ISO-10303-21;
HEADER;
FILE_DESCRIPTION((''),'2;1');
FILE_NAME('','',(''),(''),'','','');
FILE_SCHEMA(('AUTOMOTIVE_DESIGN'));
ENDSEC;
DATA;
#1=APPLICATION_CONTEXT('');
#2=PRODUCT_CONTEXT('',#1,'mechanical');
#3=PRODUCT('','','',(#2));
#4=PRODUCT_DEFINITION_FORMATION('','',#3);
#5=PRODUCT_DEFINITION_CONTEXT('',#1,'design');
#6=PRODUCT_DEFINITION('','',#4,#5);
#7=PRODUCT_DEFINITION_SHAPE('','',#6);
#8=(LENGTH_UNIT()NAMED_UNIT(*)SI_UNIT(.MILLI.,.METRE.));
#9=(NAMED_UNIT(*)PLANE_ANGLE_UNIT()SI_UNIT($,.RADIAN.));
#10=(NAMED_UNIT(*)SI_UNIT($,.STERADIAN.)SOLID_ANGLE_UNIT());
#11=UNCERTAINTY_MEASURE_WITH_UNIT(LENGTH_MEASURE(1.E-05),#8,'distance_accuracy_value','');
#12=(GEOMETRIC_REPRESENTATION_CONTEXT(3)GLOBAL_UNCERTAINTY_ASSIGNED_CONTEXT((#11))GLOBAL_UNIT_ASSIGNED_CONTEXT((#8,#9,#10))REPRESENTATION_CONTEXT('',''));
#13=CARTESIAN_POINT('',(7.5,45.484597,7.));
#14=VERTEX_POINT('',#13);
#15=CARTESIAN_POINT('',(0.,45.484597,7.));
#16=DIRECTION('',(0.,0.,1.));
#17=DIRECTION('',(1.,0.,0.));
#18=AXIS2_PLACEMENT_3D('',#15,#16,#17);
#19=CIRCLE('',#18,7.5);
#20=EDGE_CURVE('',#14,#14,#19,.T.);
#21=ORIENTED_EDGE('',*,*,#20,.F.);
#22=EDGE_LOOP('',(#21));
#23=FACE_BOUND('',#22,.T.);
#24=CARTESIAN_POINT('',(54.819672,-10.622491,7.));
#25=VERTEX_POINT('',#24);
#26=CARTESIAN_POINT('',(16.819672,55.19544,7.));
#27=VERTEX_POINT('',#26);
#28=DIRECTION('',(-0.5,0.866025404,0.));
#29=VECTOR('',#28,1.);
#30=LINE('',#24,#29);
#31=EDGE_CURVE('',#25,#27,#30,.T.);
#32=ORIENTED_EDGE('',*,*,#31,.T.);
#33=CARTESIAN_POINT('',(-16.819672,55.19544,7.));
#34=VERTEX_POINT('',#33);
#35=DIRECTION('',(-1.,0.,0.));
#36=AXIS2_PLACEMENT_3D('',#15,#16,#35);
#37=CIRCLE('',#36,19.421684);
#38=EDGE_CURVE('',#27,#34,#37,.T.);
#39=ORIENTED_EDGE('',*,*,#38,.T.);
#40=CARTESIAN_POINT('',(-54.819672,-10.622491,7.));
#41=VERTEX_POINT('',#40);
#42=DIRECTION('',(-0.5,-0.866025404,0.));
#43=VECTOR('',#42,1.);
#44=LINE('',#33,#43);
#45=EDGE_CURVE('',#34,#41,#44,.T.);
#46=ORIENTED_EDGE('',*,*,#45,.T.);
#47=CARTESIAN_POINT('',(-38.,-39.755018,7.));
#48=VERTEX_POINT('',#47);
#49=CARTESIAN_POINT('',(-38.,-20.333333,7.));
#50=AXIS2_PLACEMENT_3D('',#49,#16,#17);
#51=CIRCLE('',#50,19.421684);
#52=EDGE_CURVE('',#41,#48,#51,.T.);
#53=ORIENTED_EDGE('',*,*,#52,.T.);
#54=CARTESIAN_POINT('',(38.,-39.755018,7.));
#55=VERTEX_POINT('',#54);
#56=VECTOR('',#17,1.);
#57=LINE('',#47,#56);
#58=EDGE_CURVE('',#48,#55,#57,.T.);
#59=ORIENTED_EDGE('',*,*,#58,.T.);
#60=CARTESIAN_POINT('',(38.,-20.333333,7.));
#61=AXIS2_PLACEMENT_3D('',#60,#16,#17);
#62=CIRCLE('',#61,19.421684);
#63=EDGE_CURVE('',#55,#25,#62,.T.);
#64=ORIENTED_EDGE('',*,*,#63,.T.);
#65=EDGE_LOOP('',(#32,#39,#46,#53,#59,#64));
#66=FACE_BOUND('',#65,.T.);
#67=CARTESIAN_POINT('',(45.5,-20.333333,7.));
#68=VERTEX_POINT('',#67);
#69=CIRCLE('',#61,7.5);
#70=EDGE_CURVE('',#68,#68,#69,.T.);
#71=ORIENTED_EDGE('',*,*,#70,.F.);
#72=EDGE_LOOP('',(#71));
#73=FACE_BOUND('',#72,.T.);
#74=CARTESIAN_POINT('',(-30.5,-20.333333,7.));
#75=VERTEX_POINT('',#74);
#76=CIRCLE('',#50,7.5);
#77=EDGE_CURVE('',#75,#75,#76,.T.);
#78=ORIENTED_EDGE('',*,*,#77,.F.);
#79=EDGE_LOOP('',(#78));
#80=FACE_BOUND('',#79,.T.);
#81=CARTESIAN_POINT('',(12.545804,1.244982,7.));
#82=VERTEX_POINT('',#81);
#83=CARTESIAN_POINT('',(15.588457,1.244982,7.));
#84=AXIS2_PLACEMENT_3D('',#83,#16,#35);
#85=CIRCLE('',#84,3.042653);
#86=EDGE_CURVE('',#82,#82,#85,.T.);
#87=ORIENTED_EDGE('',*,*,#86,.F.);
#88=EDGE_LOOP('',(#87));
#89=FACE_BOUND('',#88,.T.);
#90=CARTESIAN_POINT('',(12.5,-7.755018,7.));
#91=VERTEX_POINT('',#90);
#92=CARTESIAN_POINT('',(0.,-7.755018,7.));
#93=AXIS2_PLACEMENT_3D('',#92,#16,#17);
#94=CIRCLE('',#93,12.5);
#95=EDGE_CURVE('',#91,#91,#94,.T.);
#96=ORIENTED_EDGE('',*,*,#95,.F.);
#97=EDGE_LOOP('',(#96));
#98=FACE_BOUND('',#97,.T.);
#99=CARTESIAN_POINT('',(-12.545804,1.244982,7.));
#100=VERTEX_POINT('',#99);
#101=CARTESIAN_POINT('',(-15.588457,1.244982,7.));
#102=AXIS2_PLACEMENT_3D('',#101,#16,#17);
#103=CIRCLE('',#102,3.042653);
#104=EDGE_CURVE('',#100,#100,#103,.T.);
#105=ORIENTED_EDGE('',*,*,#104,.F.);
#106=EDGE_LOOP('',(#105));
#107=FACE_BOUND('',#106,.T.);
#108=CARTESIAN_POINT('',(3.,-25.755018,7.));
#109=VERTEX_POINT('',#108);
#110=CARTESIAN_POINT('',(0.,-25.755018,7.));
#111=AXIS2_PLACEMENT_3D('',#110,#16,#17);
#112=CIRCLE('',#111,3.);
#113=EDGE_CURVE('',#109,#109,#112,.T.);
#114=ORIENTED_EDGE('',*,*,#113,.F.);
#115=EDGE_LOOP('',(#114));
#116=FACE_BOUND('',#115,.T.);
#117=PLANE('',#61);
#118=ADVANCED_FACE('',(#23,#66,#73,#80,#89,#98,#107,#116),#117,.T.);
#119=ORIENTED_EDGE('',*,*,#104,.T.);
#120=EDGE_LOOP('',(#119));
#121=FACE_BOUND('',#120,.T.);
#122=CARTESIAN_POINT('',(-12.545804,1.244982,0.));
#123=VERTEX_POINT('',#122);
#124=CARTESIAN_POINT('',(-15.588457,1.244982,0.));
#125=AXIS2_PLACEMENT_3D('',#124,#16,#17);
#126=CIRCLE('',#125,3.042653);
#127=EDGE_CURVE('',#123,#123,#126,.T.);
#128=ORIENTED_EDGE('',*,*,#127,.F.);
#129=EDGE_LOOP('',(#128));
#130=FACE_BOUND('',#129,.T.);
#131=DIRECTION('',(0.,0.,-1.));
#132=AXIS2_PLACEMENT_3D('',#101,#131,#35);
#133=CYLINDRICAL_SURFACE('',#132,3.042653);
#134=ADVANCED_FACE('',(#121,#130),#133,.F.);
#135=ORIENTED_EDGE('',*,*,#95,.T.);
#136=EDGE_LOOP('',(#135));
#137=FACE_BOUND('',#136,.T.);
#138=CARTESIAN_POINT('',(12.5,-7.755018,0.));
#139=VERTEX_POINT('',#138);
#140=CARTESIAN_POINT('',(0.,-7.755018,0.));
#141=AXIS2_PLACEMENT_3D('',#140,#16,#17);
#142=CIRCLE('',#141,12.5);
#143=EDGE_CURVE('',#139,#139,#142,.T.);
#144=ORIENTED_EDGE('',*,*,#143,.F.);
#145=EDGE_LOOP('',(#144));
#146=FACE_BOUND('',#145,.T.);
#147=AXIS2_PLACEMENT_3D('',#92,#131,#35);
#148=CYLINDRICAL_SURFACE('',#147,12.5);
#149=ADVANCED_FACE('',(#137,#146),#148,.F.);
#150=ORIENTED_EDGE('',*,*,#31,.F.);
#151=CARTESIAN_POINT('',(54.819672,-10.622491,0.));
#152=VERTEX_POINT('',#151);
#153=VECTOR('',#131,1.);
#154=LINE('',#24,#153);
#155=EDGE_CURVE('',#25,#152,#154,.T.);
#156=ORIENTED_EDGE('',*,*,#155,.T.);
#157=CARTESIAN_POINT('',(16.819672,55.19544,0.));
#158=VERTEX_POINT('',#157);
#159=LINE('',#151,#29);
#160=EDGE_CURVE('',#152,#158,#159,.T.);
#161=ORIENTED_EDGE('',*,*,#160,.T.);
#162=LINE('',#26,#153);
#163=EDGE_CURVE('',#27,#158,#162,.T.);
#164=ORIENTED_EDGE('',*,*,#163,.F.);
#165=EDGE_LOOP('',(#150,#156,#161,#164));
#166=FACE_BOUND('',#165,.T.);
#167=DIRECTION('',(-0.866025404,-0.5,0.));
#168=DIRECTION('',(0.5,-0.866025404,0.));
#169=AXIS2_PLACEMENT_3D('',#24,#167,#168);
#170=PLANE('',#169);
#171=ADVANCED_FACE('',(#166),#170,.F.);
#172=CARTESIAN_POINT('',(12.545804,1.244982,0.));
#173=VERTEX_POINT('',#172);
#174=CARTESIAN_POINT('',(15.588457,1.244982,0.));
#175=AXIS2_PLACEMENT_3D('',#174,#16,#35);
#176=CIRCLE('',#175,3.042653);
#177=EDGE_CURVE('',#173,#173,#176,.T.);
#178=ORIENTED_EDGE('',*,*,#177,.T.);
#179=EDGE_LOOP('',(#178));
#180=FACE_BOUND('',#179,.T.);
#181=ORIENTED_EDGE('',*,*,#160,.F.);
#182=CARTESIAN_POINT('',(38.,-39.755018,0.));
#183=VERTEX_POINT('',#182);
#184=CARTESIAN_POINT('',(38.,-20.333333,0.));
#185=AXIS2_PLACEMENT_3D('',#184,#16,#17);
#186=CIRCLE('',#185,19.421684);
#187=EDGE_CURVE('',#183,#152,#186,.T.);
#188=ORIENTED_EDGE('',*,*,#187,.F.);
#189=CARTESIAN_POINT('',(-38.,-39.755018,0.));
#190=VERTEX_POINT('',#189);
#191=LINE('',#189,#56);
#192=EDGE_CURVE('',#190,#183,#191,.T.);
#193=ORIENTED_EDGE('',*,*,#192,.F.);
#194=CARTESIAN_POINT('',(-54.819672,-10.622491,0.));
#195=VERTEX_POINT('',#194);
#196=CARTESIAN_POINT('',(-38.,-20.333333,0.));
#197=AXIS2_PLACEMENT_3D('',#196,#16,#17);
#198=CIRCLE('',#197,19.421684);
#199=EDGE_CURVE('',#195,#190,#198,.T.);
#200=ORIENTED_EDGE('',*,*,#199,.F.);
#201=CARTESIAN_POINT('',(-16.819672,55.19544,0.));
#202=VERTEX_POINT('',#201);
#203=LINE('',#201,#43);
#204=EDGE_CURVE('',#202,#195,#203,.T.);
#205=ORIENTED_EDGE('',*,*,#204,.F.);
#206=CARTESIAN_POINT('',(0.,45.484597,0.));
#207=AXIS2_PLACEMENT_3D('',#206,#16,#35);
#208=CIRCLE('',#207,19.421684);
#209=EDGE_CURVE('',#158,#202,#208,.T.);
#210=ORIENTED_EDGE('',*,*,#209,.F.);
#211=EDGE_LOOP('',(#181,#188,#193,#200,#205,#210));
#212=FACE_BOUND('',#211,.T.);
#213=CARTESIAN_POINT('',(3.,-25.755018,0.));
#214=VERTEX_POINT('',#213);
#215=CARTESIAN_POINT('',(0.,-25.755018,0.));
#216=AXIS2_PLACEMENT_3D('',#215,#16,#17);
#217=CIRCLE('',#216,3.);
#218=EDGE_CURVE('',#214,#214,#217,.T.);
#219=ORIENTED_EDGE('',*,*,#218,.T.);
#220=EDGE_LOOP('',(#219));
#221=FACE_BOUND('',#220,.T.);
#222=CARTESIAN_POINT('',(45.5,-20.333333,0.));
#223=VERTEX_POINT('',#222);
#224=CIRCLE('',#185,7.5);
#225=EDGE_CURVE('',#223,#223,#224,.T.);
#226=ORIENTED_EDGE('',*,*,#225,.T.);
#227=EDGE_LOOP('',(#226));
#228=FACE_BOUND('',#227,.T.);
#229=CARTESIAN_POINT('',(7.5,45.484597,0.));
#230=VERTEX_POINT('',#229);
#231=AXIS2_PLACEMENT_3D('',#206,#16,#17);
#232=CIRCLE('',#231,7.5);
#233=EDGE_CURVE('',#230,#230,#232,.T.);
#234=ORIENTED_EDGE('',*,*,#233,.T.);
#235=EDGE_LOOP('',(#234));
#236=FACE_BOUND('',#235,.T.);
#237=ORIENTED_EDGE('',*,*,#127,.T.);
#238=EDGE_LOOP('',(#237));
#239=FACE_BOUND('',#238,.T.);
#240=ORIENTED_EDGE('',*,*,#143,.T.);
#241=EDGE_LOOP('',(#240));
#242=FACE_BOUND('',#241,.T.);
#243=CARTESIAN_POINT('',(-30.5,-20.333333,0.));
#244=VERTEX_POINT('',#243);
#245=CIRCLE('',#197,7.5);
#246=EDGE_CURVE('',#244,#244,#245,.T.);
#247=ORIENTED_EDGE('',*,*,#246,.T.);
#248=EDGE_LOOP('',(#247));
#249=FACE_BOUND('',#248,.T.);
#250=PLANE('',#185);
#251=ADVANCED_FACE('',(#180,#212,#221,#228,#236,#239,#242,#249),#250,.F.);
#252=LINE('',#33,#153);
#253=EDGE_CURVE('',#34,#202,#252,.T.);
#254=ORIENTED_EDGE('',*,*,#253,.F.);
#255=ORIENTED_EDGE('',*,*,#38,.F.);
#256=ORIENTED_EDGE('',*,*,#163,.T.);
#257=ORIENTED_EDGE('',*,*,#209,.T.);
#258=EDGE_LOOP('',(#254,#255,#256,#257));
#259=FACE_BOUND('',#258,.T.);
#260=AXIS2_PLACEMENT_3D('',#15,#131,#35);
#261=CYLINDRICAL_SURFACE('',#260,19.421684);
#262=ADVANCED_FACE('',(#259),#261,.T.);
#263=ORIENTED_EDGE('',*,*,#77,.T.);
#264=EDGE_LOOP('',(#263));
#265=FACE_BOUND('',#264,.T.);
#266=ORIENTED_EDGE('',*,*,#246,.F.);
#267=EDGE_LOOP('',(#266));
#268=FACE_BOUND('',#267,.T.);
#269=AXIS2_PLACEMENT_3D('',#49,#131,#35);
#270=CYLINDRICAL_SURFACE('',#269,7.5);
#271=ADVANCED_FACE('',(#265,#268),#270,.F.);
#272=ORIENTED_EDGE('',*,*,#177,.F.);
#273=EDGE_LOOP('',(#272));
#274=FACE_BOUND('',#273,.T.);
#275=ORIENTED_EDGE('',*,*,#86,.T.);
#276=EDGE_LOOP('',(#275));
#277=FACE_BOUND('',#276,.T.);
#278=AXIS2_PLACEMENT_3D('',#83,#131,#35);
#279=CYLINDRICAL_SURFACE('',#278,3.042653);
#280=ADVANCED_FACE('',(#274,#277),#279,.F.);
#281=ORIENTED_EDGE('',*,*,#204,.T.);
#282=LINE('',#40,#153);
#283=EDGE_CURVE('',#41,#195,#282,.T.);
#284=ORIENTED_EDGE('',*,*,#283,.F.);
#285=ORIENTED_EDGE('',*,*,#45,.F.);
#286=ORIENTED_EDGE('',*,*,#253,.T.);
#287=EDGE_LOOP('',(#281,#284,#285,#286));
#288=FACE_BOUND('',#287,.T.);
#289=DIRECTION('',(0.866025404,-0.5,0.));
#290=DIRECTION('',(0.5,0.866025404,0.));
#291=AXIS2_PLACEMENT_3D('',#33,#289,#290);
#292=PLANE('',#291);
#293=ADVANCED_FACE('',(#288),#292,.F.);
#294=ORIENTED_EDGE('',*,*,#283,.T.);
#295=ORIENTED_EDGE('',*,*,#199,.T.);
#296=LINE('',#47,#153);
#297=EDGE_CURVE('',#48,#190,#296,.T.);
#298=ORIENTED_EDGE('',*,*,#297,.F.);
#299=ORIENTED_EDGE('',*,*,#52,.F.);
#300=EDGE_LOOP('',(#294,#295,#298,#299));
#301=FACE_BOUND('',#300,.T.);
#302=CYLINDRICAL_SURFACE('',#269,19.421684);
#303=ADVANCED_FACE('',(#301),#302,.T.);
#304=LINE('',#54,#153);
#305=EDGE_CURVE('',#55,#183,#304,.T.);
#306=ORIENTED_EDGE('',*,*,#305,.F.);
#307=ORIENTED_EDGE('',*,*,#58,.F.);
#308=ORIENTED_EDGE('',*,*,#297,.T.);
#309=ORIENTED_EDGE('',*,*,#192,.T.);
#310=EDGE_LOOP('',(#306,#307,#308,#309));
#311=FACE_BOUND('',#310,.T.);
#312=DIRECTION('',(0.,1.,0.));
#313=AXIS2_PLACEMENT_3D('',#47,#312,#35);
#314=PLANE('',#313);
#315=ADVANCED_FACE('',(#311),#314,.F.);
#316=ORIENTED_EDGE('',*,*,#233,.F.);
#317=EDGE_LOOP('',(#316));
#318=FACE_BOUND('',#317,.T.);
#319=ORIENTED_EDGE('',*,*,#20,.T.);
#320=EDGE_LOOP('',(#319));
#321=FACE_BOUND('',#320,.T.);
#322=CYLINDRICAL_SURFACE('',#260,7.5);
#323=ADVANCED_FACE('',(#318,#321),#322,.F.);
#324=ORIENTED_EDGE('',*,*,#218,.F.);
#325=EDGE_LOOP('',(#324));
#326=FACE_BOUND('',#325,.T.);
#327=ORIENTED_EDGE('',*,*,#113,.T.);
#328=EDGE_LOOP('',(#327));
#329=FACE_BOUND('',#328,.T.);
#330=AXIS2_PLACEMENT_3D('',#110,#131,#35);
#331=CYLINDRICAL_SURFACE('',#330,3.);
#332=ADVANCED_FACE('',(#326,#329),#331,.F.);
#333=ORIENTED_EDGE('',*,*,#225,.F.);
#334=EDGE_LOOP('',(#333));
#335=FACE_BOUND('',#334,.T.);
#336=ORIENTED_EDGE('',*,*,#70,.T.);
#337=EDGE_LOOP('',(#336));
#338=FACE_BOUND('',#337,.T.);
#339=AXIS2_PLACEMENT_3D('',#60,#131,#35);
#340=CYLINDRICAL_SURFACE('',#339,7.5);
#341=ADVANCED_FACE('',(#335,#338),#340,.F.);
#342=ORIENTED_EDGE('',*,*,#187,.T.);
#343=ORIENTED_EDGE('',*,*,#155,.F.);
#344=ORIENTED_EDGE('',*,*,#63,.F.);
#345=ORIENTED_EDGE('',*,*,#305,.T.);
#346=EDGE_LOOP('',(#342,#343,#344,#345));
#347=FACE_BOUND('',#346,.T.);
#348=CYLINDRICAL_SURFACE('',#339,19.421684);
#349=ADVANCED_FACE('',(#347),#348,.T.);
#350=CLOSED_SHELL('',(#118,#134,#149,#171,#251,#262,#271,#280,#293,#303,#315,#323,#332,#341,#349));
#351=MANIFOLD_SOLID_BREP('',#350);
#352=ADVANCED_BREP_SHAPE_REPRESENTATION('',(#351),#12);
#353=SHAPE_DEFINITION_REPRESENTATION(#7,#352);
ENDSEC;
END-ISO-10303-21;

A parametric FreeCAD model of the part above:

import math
import FreeCAD as App
import Part
import Sketcher
from FreeCAD import Vector
Q = App.Units.Quantity

doc = App.newDocument("Part")
body = doc.addObject("PartDesign::Body", "Body")

sketch1 = doc.addObject("Sketcher::SketchObject", "Sketch")
body.addObject(sketch1)
sketch1.AttachmentSupport = (doc.XY_Plane, [""])
sketch1.MapMode = "FlatFace"
sketch1.addGeometry(Part.LineSegment(Vector(-16.819672, 55.19544, 0), Vector(-54.819672, -10.622491, 0)), False)
sketch1.addGeometry(Part.ArcOfCircle(Part.Circle(Vector(-38, -20.333333, 0), Vector(0, 0, 1), 19.421684), math.radians(150), math.radians(270)), False)
sketch1.addGeometry(Part.LineSegment(Vector(-38, -39.755018, 0), Vector(38, -39.755018, 0)), False)
sketch1.addGeometry(Part.ArcOfCircle(Part.Circle(Vector(38, -20.333333, 0), Vector(0, 0, 1), 19.421684), math.radians(-90), math.radians(30)), False)
sketch1.addGeometry(Part.LineSegment(Vector(54.819672, -10.622491, 0), Vector(16.819672, 55.19544, 0)), False)
sketch1.addGeometry(Part.ArcOfCircle(Part.Circle(Vector(0, 45.484597, 0), Vector(0, 0, 1), 19.421684), math.radians(30), math.radians(150)), False)
sketch1.addGeometry(Part.Circle(Vector(-38, -20.333333, 0), Vector(0, 0, 1), 7.5), False)
sketch1.addGeometry(Part.Circle(Vector(-15.588457, 1.244982, 0), Vector(0, 0, 1), 3.042653), False)
sketch1.addGeometry(Part.Circle(Vector(0, -25.755018, 0), Vector(0, 0, 1), 3), False)
sketch1.addGeometry(Part.Circle(Vector(38, -20.333333, 0), Vector(0, 0, 1), 7.5), False)
sketch1.addGeometry(Part.Circle(Vector(0, -7.755018, 0), Vector(0, 0, 1), 12.5), False)
sketch1.addGeometry(Part.Circle(Vector(15.588457, 1.244982, 0), Vector(0, 0, 1), 3.042653), False)
sketch1.addGeometry(Part.Circle(Vector(0, 45.484597, 0), Vector(0, 0, 1), 7.5), False)
sketch1.addConstraint(Sketcher.Constraint("Tangent", 0, 2, 1, 1))
sketch1.addConstraint(Sketcher.Constraint("Tangent", 1, 2, 2, 1))
sketch1.addConstraint(Sketcher.Constraint("Tangent", 2, 2, 3, 1))
sketch1.addConstraint(Sketcher.Constraint("Tangent", 3, 2, 4, 1))
sketch1.addConstraint(Sketcher.Constraint("Tangent", 4, 2, 5, 1))
sketch1.addConstraint(Sketcher.Constraint("Tangent", 5, 2, 0, 1))
sketch1.addConstraint(Sketcher.Constraint("Horizontal", 2))
sketch1.addConstraint(Sketcher.Constraint("Coincident", 6, 3, 1, 3))
sketch1.addConstraint(Sketcher.Constraint("Coincident", 9, 3, 3, 3))
sketch1.addConstraint(Sketcher.Constraint("Coincident", 12, 3, 5, 3))
sketch1.addConstraint(Sketcher.Constraint("Equal", 1, 3))
sketch1.addConstraint(Sketcher.Constraint("Equal", 3, 5))
sketch1.addConstraint(Sketcher.Constraint("Equal", 6, 9))
sketch1.addConstraint(Sketcher.Constraint("Equal", 7, 11))
sketch1.addConstraint(Sketcher.Constraint("Equal", 9, 12))
sketch1.addConstraint(Sketcher.Constraint("Symmetric", 7, 3, 11, 3, -2))
sketch1.addConstraint(Sketcher.Constraint("Symmetric", 0, 2, 3, 2, -2))
sketch1.addConstraint(Sketcher.Constraint("PointOnObject", 8, 3, -2))
sketch1.addConstraint(Sketcher.Constraint("PointOnObject", 10, 3, -2))
sketch1.addConstraint(Sketcher.Constraint("Diameter", 6, Q("15 mm")))
sketch1.addConstraint(Sketcher.Constraint("Diameter", 8, Q("6 mm")))
sketch1.addConstraint(Sketcher.Constraint("Diameter", 10, Q("25 mm")))
sketch1.addConstraint(Sketcher.Constraint("DistanceX", 2, 1, 2, 2, Q("76 mm")))
sketch1.addConstraint(Sketcher.Constraint("Angle", 0, Q("-120 deg")))
sketch1.addConstraint(Sketcher.Constraint("DistanceY", 8, 3, 7, 3, Q("27 mm")))
sketch1.addConstraint(Sketcher.Constraint("DistanceY", 10, 3, 7, 3, Q("9 mm")))
sketch1.addConstraint(Sketcher.Constraint("DistanceY", 1, 2, 8, 3, Q("14 mm")))
sketch1.addConstraint(Sketcher.Constraint("Diameter", 7, Q("6.085306 mm")))
sketch1.addConstraint(Sketcher.Constraint("Radius", 1, Q("19.421684 mm")))
sketch1.addConstraint(Sketcher.Constraint("DistanceY", 0, 2, -1, 1, Q("10.622491 mm")))
sketch1.addConstraint(Sketcher.Constraint("DistanceX", 7, 3, 4, 2, Q("32.408129 mm")))
pad1 = doc.addObject("PartDesign::Pad", "Pad")
body.addObject(pad1)
pad1.Profile = sketch1
pad1.Length = 7

doc.recompute()
